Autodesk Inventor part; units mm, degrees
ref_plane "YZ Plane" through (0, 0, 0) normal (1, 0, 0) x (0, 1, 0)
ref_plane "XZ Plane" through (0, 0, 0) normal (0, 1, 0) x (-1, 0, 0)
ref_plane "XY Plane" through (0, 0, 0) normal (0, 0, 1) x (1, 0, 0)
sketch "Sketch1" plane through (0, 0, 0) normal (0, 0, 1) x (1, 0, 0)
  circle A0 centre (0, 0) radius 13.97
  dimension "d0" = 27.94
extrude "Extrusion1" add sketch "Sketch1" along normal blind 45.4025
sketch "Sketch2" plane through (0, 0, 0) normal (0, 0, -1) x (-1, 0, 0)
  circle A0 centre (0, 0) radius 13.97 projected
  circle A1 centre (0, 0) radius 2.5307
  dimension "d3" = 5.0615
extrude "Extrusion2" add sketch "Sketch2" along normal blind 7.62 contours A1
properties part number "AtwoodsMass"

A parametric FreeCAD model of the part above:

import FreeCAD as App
import Part
import Sketcher
Q = App.Units.Quantity

doc = App.newDocument("Part")
body = doc.addObject("PartDesign::Body", "Body")

sketch1 = body.newObject("Sketcher::SketchObject", "Sketch")
sketch1.AttachmentSupport = (doc.getObject("XY_Plane"), [""])
sketch1.MapMode = "FlatFace"
sketch1.addGeometry(Part.Circle(App.Vector(0, 0, 0), App.Vector(0, 0, 1), 14), False)
sketch1.addConstraint(Sketcher.Constraint("Coincident", 0, 3, -1, 1))
sketch1.addConstraint(Sketcher.Constraint("Diameter", 0, Q("1.1 in")))
pad1 = body.newObject("PartDesign::Pad", "Pad")
pad1.Profile = sketch1
pad1.Length = Q("1.7875 in")

sketch2 = body.newObject("Sketcher::SketchObject", "Sketch001")
sketch2.AttachmentSupport = (doc.getObject("XY_Plane"), [""])
sketch2.MapMode = "FlatFace"
sketch2.addGeometry(Part.Circle(App.Vector(0, 0, 0), App.Vector(0, 0, 1), 2.5), False)
sketch2.addConstraint(Sketcher.Constraint("Coincident", 0, 3, -1, 1))
sketch2.addConstraint(Sketcher.Constraint("Diameter", 0, Q("5.0614 mm")))
pad2 = body.newObject("PartDesign::Pad", "Pad001")
pad2.Profile = sketch2
pad2.Length = Q("0.3 in")
pad2.Reversed = True

doc.recompute()
